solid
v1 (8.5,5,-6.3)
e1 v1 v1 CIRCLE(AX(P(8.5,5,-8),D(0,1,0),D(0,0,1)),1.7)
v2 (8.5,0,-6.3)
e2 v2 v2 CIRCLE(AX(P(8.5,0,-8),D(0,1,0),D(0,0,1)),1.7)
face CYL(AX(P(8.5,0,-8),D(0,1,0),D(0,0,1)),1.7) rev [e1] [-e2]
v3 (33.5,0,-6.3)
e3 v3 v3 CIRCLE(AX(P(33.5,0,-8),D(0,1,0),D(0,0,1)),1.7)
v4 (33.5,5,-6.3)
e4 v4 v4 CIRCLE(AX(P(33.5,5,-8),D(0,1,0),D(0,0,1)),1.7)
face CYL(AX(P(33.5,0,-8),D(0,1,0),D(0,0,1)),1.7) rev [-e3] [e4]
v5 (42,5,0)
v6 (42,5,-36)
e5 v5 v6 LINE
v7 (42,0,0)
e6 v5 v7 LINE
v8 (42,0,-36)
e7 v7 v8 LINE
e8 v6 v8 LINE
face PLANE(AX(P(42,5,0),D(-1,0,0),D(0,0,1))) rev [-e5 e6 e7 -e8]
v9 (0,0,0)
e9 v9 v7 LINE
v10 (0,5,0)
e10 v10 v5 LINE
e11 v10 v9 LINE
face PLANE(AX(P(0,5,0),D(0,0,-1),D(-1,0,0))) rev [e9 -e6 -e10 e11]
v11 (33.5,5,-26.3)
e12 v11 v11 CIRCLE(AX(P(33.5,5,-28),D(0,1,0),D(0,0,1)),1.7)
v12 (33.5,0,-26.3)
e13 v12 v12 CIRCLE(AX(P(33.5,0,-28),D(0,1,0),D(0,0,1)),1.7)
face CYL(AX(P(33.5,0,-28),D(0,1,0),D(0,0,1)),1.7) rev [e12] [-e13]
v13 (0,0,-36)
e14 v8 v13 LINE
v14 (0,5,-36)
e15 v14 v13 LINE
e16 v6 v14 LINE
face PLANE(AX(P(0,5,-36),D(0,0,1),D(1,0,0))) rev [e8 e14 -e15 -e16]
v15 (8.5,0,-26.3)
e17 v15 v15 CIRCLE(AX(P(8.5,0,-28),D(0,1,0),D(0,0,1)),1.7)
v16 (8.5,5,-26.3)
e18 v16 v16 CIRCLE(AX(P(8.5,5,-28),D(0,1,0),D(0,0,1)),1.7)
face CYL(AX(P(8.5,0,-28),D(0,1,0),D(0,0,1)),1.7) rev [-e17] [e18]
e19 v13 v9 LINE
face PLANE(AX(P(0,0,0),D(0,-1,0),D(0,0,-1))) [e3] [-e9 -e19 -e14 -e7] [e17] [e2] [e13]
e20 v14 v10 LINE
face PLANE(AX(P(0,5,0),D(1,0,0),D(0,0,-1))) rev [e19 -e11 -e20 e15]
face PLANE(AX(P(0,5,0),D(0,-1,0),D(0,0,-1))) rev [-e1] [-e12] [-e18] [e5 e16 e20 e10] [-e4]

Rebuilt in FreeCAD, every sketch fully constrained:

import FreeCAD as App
import Part
import Sketcher

doc = App.newDocument("Part")
body = doc.addObject("PartDesign::Body", "Body")

# Sketch on XZ plane
sketch1 = body.newObject("Sketcher::SketchObject", "Sketch")
sketch1.AttachmentSupport = (doc.getObject("XZ_Plane"), [""])
sketch1.MapMode = "FlatFace"
sketch1.addGeometry([
    Part.LineSegment(App.Vector(0, -36, 0), App.Vector(0, 0, 0)),
    Part.LineSegment(App.Vector(0, 0, 0), App.Vector(42, 0, 0)),
    Part.LineSegment(App.Vector(42, 0, 0), App.Vector(42, -36, 0)),
    Part.LineSegment(App.Vector(42, -36, 0), App.Vector(0, -36, 0)),
], False)
sketch1.addConstraint([
    Sketcher.Constraint("Coincident", 0, 2, 1, 1),
    Sketcher.Constraint("Coincident", 1, 2, 2, 1),
    Sketcher.Constraint("Coincident", 2, 2, 3, 1),
    Sketcher.Constraint("Coincident", 3, 2, 0, 1),
    Sketcher.Constraint("Vertical", 0),
    Sketcher.Constraint("Horizontal", 1),
    Sketcher.Constraint("Vertical", 2),
    Sketcher.Constraint("Horizontal", 3),
    Sketcher.Constraint("Coincident", 0, 2, -1, 1),
    Sketcher.Constraint("DistanceX", 1, 1, 1, 2, 42.0),
    Sketcher.Constraint("DistanceY", 0, 1, 0, 2, 36.0),
])
pad1 = body.newObject("PartDesign::Pad", "Pad")
pad1.Profile = sketch1
pad1.Length = 5
pad1.Reversed = True

# Sketch on XZ plane
sketch2 = body.newObject("Sketcher::SketchObject", "Sketch001")
sketch2.AttachmentSupport = (doc.getObject("XZ_Plane"), [""])
sketch2.MapMode = "FlatFace"
sketch2.AttachmentOffset = App.Placement(App.Vector(0, 0, -5), App.Rotation())
sketch2.addGeometry([
    Part.Circle(App.Vector(33.5, -28, 0), App.Vector(0, 0, 1), 1.7),
    Part.Circle(App.Vector(33.5, -8, 0), App.Vector(0, 0, 1), 1.7),
    Part.Circle(App.Vector(8.5, -8, 0), App.Vector(0, 0, 1), 1.7),
    Part.Circle(App.Vector(8.5, -28, 0), App.Vector(0, 0, 1), 1.7),
], False)
sketch2.addConstraint([
    Sketcher.Constraint("Equal", 0, 1),
    Sketcher.Constraint("Equal", 1, 2),
    Sketcher.Constraint("Equal", 2, 3),
    Sketcher.Constraint("Horizontal", 1, 3, 2, 3),
    Sketcher.Constraint("Horizontal", 0, 3, 3, 3),
    Sketcher.Constraint("Vertical", 0, 3, 1, 3),
    Sketcher.Constraint("Vertical", 2, 3, 3, 3),
    Sketcher.Constraint("Diameter", 0, 3.4),
    Sketcher.Constraint("DistanceY", 0, 3, -1, 1, 28.0),
    Sketcher.Constraint("DistanceY", 1, 3, -1, 1, 8.0),
    Sketcher.Constraint("DistanceX", 2, 3, 1, 3, 25.0),
    Sketcher.Constraint("DistanceX", -1, 1, 0, 3, 33.5),
])
pocket1 = body.newObject("PartDesign::Pocket", "Pocket")
pocket1.Profile = sketch2
pocket1.Length = 5
pocket1.Reversed = True

doc.recompute()
